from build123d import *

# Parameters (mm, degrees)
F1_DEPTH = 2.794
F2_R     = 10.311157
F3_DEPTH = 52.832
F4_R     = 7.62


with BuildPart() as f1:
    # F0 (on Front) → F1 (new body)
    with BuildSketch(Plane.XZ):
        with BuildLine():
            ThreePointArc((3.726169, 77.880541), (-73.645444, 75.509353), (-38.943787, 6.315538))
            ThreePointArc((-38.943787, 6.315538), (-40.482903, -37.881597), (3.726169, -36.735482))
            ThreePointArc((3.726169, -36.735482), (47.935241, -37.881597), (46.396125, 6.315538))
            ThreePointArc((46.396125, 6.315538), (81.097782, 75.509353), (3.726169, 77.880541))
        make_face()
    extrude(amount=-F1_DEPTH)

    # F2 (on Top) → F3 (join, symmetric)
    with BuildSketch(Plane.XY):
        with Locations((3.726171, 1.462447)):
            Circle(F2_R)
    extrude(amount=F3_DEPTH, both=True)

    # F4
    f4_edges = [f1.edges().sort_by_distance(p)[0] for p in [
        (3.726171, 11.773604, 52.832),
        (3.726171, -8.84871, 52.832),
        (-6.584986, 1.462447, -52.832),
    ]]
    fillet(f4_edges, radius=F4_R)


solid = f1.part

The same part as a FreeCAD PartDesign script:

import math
import FreeCAD as App
import Part
import Sketcher


def edges_at(feature, points):
    """Names of the edges that pass closest to the given points."""
    edges = feature.Shape.Edges
    near = lambda p: min(range(len(edges)), key=lambda i: edges[i].distToShape(Part.Vertex(*p))[0])
    return sorted({f"Edge{near(p) + 1}" for p in points})

doc = App.newDocument("Part")
params = doc.addObject("Spreadsheet::Sheet", "Params")
for row, (alias, value) in enumerate([
    ("pad1_length", "0.11 in"),
    ("pad2_length", "4.16 in"),
    ("fillet_radius", "0.3 in"),
], start=1):
    params.set(f"A{row}", alias)
    params.set(f"B{row}", "=" + value)
    params.setAlias(f"B{row}", alias)

body = doc.addObject("PartDesign::Body", "Body")

sketch1 = body.newObject("Sketcher::SketchObject", "Sketch")
sketch1.AttachmentSupport = (doc.getObject("XZ_Plane"), [""])
sketch1.MapMode = "FlatFace"
sketch1.addGeometry(Part.ArcOfCircle(Part.Circle(App.Vector(-34.20257, 51.991912, 0), App.Vector(0, 0, 1), 45.921785), math.radians(34.31587), math.radians(264.073909)), False)
sketch1.addGeometry(Part.ArcOfCircle(Part.Circle(App.Vector(-18.917639, -16.507217, 0), App.Vector(0, 0, 1), 30.363214), math.radians(131.26579), math.radians(318.224808)), False)
sketch1.addGeometry(Part.ArcOfCircle(Part.Circle(App.Vector(26.369977, -16.507217, 0), App.Vector(0, 0, 1), 30.363214), math.radians(-138.224808), math.radians(48.73421)), False)
sketch1.addGeometry(Part.ArcOfCircle(Part.Circle(App.Vector(41.654908, 51.991912, 0), App.Vector(0, 0, 1), 45.921785), math.radians(-84.073909), math.radians(145.68413)), False)
sketch1.addConstraint(Sketcher.Constraint("Coincident", 0, 2, 1, 1))
sketch1.addConstraint(Sketcher.Constraint("Coincident", 1, 2, 2, 1))
sketch1.addConstraint(Sketcher.Constraint("Coincident", 2, 2, 3, 1))
sketch1.addConstraint(Sketcher.Constraint("Coincident", 3, 2, 0, 1))
sketch1.addConstraint(Sketcher.Constraint("Equal", 1, 2))
sketch1.addConstraint(Sketcher.Constraint("Equal", 0, 3))
sketch1.addConstraint(Sketcher.Constraint("Horizontal", 1, 3, 2, 3))
sketch1.addConstraint(Sketcher.Constraint("Horizontal", 0, 3, 3, 3))
sketch1.addConstraint(Sketcher.Constraint("Horizontal", 0, 2, 2, 2))
sketch1.addConstraint(Sketcher.Constraint("Radius", 0, 45.921785))
sketch1.addConstraint(Sketcher.Constraint("Radius", 1, 30.363214))
sketch1.addConstraint(Sketcher.Constraint("DistanceX", 0, 3, -1, 1, 34.20257))
sketch1.addConstraint(Sketcher.Constraint("DistanceX", 1, 3, -1, 1, 18.917639))
sketch1.addConstraint(Sketcher.Constraint("DistanceY", -1, 1, 0, 2, 6.315538))
sketch1.addConstraint(Sketcher.Constraint("DistanceX", -1, 1, 1, 2, 3.726169))
sketch1.addConstraint(Sketcher.Constraint("DistanceY", -1, 1, 3, 2, 77.880541))
pad1 = body.newObject("PartDesign::Pad", "Pad")
pad1.Profile = sketch1
pad1.setExpression("Length", "Params.pad1_length")
pad1.Reversed = True

sketch2 = body.newObject("Sketcher::SketchObject", "Sketch001")
sketch2.AttachmentSupport = (doc.getObject("XY_Plane"), [""])
sketch2.MapMode = "FlatFace"
sketch2.addGeometry(Part.Circle(App.Vector(3.726171, 1.462447, 0), App.Vector(0, 0, 1), 10.311157), False)
sketch2.addConstraint(Sketcher.Constraint("Diameter", 0, 20.622314))
sketch2.addConstraint(Sketcher.Constraint("DistanceX", -1, 1, 0, 3, 3.726171))
sketch2.addConstraint(Sketcher.Constraint("DistanceY", -1, 1, 0, 3, 1.462447))
pad2 = body.newObject("PartDesign::Pad", "Pad001")
pad2.Profile = sketch2
pad2.setExpression("Length", "Params.pad2_length")
pad2.Midplane = True
doc.recompute()

fillet = body.newObject("PartDesign::Fillet", "Fillet")
fillet.Base = (pad2, edges_at(pad2, [(3.726, 11.774, 52.832), (3.726, -8.849, 52.832), (-6.585, 1.462, -52.832)]))
fillet.setExpression("Radius", "Params.fillet_radius")

doc.recompute()
